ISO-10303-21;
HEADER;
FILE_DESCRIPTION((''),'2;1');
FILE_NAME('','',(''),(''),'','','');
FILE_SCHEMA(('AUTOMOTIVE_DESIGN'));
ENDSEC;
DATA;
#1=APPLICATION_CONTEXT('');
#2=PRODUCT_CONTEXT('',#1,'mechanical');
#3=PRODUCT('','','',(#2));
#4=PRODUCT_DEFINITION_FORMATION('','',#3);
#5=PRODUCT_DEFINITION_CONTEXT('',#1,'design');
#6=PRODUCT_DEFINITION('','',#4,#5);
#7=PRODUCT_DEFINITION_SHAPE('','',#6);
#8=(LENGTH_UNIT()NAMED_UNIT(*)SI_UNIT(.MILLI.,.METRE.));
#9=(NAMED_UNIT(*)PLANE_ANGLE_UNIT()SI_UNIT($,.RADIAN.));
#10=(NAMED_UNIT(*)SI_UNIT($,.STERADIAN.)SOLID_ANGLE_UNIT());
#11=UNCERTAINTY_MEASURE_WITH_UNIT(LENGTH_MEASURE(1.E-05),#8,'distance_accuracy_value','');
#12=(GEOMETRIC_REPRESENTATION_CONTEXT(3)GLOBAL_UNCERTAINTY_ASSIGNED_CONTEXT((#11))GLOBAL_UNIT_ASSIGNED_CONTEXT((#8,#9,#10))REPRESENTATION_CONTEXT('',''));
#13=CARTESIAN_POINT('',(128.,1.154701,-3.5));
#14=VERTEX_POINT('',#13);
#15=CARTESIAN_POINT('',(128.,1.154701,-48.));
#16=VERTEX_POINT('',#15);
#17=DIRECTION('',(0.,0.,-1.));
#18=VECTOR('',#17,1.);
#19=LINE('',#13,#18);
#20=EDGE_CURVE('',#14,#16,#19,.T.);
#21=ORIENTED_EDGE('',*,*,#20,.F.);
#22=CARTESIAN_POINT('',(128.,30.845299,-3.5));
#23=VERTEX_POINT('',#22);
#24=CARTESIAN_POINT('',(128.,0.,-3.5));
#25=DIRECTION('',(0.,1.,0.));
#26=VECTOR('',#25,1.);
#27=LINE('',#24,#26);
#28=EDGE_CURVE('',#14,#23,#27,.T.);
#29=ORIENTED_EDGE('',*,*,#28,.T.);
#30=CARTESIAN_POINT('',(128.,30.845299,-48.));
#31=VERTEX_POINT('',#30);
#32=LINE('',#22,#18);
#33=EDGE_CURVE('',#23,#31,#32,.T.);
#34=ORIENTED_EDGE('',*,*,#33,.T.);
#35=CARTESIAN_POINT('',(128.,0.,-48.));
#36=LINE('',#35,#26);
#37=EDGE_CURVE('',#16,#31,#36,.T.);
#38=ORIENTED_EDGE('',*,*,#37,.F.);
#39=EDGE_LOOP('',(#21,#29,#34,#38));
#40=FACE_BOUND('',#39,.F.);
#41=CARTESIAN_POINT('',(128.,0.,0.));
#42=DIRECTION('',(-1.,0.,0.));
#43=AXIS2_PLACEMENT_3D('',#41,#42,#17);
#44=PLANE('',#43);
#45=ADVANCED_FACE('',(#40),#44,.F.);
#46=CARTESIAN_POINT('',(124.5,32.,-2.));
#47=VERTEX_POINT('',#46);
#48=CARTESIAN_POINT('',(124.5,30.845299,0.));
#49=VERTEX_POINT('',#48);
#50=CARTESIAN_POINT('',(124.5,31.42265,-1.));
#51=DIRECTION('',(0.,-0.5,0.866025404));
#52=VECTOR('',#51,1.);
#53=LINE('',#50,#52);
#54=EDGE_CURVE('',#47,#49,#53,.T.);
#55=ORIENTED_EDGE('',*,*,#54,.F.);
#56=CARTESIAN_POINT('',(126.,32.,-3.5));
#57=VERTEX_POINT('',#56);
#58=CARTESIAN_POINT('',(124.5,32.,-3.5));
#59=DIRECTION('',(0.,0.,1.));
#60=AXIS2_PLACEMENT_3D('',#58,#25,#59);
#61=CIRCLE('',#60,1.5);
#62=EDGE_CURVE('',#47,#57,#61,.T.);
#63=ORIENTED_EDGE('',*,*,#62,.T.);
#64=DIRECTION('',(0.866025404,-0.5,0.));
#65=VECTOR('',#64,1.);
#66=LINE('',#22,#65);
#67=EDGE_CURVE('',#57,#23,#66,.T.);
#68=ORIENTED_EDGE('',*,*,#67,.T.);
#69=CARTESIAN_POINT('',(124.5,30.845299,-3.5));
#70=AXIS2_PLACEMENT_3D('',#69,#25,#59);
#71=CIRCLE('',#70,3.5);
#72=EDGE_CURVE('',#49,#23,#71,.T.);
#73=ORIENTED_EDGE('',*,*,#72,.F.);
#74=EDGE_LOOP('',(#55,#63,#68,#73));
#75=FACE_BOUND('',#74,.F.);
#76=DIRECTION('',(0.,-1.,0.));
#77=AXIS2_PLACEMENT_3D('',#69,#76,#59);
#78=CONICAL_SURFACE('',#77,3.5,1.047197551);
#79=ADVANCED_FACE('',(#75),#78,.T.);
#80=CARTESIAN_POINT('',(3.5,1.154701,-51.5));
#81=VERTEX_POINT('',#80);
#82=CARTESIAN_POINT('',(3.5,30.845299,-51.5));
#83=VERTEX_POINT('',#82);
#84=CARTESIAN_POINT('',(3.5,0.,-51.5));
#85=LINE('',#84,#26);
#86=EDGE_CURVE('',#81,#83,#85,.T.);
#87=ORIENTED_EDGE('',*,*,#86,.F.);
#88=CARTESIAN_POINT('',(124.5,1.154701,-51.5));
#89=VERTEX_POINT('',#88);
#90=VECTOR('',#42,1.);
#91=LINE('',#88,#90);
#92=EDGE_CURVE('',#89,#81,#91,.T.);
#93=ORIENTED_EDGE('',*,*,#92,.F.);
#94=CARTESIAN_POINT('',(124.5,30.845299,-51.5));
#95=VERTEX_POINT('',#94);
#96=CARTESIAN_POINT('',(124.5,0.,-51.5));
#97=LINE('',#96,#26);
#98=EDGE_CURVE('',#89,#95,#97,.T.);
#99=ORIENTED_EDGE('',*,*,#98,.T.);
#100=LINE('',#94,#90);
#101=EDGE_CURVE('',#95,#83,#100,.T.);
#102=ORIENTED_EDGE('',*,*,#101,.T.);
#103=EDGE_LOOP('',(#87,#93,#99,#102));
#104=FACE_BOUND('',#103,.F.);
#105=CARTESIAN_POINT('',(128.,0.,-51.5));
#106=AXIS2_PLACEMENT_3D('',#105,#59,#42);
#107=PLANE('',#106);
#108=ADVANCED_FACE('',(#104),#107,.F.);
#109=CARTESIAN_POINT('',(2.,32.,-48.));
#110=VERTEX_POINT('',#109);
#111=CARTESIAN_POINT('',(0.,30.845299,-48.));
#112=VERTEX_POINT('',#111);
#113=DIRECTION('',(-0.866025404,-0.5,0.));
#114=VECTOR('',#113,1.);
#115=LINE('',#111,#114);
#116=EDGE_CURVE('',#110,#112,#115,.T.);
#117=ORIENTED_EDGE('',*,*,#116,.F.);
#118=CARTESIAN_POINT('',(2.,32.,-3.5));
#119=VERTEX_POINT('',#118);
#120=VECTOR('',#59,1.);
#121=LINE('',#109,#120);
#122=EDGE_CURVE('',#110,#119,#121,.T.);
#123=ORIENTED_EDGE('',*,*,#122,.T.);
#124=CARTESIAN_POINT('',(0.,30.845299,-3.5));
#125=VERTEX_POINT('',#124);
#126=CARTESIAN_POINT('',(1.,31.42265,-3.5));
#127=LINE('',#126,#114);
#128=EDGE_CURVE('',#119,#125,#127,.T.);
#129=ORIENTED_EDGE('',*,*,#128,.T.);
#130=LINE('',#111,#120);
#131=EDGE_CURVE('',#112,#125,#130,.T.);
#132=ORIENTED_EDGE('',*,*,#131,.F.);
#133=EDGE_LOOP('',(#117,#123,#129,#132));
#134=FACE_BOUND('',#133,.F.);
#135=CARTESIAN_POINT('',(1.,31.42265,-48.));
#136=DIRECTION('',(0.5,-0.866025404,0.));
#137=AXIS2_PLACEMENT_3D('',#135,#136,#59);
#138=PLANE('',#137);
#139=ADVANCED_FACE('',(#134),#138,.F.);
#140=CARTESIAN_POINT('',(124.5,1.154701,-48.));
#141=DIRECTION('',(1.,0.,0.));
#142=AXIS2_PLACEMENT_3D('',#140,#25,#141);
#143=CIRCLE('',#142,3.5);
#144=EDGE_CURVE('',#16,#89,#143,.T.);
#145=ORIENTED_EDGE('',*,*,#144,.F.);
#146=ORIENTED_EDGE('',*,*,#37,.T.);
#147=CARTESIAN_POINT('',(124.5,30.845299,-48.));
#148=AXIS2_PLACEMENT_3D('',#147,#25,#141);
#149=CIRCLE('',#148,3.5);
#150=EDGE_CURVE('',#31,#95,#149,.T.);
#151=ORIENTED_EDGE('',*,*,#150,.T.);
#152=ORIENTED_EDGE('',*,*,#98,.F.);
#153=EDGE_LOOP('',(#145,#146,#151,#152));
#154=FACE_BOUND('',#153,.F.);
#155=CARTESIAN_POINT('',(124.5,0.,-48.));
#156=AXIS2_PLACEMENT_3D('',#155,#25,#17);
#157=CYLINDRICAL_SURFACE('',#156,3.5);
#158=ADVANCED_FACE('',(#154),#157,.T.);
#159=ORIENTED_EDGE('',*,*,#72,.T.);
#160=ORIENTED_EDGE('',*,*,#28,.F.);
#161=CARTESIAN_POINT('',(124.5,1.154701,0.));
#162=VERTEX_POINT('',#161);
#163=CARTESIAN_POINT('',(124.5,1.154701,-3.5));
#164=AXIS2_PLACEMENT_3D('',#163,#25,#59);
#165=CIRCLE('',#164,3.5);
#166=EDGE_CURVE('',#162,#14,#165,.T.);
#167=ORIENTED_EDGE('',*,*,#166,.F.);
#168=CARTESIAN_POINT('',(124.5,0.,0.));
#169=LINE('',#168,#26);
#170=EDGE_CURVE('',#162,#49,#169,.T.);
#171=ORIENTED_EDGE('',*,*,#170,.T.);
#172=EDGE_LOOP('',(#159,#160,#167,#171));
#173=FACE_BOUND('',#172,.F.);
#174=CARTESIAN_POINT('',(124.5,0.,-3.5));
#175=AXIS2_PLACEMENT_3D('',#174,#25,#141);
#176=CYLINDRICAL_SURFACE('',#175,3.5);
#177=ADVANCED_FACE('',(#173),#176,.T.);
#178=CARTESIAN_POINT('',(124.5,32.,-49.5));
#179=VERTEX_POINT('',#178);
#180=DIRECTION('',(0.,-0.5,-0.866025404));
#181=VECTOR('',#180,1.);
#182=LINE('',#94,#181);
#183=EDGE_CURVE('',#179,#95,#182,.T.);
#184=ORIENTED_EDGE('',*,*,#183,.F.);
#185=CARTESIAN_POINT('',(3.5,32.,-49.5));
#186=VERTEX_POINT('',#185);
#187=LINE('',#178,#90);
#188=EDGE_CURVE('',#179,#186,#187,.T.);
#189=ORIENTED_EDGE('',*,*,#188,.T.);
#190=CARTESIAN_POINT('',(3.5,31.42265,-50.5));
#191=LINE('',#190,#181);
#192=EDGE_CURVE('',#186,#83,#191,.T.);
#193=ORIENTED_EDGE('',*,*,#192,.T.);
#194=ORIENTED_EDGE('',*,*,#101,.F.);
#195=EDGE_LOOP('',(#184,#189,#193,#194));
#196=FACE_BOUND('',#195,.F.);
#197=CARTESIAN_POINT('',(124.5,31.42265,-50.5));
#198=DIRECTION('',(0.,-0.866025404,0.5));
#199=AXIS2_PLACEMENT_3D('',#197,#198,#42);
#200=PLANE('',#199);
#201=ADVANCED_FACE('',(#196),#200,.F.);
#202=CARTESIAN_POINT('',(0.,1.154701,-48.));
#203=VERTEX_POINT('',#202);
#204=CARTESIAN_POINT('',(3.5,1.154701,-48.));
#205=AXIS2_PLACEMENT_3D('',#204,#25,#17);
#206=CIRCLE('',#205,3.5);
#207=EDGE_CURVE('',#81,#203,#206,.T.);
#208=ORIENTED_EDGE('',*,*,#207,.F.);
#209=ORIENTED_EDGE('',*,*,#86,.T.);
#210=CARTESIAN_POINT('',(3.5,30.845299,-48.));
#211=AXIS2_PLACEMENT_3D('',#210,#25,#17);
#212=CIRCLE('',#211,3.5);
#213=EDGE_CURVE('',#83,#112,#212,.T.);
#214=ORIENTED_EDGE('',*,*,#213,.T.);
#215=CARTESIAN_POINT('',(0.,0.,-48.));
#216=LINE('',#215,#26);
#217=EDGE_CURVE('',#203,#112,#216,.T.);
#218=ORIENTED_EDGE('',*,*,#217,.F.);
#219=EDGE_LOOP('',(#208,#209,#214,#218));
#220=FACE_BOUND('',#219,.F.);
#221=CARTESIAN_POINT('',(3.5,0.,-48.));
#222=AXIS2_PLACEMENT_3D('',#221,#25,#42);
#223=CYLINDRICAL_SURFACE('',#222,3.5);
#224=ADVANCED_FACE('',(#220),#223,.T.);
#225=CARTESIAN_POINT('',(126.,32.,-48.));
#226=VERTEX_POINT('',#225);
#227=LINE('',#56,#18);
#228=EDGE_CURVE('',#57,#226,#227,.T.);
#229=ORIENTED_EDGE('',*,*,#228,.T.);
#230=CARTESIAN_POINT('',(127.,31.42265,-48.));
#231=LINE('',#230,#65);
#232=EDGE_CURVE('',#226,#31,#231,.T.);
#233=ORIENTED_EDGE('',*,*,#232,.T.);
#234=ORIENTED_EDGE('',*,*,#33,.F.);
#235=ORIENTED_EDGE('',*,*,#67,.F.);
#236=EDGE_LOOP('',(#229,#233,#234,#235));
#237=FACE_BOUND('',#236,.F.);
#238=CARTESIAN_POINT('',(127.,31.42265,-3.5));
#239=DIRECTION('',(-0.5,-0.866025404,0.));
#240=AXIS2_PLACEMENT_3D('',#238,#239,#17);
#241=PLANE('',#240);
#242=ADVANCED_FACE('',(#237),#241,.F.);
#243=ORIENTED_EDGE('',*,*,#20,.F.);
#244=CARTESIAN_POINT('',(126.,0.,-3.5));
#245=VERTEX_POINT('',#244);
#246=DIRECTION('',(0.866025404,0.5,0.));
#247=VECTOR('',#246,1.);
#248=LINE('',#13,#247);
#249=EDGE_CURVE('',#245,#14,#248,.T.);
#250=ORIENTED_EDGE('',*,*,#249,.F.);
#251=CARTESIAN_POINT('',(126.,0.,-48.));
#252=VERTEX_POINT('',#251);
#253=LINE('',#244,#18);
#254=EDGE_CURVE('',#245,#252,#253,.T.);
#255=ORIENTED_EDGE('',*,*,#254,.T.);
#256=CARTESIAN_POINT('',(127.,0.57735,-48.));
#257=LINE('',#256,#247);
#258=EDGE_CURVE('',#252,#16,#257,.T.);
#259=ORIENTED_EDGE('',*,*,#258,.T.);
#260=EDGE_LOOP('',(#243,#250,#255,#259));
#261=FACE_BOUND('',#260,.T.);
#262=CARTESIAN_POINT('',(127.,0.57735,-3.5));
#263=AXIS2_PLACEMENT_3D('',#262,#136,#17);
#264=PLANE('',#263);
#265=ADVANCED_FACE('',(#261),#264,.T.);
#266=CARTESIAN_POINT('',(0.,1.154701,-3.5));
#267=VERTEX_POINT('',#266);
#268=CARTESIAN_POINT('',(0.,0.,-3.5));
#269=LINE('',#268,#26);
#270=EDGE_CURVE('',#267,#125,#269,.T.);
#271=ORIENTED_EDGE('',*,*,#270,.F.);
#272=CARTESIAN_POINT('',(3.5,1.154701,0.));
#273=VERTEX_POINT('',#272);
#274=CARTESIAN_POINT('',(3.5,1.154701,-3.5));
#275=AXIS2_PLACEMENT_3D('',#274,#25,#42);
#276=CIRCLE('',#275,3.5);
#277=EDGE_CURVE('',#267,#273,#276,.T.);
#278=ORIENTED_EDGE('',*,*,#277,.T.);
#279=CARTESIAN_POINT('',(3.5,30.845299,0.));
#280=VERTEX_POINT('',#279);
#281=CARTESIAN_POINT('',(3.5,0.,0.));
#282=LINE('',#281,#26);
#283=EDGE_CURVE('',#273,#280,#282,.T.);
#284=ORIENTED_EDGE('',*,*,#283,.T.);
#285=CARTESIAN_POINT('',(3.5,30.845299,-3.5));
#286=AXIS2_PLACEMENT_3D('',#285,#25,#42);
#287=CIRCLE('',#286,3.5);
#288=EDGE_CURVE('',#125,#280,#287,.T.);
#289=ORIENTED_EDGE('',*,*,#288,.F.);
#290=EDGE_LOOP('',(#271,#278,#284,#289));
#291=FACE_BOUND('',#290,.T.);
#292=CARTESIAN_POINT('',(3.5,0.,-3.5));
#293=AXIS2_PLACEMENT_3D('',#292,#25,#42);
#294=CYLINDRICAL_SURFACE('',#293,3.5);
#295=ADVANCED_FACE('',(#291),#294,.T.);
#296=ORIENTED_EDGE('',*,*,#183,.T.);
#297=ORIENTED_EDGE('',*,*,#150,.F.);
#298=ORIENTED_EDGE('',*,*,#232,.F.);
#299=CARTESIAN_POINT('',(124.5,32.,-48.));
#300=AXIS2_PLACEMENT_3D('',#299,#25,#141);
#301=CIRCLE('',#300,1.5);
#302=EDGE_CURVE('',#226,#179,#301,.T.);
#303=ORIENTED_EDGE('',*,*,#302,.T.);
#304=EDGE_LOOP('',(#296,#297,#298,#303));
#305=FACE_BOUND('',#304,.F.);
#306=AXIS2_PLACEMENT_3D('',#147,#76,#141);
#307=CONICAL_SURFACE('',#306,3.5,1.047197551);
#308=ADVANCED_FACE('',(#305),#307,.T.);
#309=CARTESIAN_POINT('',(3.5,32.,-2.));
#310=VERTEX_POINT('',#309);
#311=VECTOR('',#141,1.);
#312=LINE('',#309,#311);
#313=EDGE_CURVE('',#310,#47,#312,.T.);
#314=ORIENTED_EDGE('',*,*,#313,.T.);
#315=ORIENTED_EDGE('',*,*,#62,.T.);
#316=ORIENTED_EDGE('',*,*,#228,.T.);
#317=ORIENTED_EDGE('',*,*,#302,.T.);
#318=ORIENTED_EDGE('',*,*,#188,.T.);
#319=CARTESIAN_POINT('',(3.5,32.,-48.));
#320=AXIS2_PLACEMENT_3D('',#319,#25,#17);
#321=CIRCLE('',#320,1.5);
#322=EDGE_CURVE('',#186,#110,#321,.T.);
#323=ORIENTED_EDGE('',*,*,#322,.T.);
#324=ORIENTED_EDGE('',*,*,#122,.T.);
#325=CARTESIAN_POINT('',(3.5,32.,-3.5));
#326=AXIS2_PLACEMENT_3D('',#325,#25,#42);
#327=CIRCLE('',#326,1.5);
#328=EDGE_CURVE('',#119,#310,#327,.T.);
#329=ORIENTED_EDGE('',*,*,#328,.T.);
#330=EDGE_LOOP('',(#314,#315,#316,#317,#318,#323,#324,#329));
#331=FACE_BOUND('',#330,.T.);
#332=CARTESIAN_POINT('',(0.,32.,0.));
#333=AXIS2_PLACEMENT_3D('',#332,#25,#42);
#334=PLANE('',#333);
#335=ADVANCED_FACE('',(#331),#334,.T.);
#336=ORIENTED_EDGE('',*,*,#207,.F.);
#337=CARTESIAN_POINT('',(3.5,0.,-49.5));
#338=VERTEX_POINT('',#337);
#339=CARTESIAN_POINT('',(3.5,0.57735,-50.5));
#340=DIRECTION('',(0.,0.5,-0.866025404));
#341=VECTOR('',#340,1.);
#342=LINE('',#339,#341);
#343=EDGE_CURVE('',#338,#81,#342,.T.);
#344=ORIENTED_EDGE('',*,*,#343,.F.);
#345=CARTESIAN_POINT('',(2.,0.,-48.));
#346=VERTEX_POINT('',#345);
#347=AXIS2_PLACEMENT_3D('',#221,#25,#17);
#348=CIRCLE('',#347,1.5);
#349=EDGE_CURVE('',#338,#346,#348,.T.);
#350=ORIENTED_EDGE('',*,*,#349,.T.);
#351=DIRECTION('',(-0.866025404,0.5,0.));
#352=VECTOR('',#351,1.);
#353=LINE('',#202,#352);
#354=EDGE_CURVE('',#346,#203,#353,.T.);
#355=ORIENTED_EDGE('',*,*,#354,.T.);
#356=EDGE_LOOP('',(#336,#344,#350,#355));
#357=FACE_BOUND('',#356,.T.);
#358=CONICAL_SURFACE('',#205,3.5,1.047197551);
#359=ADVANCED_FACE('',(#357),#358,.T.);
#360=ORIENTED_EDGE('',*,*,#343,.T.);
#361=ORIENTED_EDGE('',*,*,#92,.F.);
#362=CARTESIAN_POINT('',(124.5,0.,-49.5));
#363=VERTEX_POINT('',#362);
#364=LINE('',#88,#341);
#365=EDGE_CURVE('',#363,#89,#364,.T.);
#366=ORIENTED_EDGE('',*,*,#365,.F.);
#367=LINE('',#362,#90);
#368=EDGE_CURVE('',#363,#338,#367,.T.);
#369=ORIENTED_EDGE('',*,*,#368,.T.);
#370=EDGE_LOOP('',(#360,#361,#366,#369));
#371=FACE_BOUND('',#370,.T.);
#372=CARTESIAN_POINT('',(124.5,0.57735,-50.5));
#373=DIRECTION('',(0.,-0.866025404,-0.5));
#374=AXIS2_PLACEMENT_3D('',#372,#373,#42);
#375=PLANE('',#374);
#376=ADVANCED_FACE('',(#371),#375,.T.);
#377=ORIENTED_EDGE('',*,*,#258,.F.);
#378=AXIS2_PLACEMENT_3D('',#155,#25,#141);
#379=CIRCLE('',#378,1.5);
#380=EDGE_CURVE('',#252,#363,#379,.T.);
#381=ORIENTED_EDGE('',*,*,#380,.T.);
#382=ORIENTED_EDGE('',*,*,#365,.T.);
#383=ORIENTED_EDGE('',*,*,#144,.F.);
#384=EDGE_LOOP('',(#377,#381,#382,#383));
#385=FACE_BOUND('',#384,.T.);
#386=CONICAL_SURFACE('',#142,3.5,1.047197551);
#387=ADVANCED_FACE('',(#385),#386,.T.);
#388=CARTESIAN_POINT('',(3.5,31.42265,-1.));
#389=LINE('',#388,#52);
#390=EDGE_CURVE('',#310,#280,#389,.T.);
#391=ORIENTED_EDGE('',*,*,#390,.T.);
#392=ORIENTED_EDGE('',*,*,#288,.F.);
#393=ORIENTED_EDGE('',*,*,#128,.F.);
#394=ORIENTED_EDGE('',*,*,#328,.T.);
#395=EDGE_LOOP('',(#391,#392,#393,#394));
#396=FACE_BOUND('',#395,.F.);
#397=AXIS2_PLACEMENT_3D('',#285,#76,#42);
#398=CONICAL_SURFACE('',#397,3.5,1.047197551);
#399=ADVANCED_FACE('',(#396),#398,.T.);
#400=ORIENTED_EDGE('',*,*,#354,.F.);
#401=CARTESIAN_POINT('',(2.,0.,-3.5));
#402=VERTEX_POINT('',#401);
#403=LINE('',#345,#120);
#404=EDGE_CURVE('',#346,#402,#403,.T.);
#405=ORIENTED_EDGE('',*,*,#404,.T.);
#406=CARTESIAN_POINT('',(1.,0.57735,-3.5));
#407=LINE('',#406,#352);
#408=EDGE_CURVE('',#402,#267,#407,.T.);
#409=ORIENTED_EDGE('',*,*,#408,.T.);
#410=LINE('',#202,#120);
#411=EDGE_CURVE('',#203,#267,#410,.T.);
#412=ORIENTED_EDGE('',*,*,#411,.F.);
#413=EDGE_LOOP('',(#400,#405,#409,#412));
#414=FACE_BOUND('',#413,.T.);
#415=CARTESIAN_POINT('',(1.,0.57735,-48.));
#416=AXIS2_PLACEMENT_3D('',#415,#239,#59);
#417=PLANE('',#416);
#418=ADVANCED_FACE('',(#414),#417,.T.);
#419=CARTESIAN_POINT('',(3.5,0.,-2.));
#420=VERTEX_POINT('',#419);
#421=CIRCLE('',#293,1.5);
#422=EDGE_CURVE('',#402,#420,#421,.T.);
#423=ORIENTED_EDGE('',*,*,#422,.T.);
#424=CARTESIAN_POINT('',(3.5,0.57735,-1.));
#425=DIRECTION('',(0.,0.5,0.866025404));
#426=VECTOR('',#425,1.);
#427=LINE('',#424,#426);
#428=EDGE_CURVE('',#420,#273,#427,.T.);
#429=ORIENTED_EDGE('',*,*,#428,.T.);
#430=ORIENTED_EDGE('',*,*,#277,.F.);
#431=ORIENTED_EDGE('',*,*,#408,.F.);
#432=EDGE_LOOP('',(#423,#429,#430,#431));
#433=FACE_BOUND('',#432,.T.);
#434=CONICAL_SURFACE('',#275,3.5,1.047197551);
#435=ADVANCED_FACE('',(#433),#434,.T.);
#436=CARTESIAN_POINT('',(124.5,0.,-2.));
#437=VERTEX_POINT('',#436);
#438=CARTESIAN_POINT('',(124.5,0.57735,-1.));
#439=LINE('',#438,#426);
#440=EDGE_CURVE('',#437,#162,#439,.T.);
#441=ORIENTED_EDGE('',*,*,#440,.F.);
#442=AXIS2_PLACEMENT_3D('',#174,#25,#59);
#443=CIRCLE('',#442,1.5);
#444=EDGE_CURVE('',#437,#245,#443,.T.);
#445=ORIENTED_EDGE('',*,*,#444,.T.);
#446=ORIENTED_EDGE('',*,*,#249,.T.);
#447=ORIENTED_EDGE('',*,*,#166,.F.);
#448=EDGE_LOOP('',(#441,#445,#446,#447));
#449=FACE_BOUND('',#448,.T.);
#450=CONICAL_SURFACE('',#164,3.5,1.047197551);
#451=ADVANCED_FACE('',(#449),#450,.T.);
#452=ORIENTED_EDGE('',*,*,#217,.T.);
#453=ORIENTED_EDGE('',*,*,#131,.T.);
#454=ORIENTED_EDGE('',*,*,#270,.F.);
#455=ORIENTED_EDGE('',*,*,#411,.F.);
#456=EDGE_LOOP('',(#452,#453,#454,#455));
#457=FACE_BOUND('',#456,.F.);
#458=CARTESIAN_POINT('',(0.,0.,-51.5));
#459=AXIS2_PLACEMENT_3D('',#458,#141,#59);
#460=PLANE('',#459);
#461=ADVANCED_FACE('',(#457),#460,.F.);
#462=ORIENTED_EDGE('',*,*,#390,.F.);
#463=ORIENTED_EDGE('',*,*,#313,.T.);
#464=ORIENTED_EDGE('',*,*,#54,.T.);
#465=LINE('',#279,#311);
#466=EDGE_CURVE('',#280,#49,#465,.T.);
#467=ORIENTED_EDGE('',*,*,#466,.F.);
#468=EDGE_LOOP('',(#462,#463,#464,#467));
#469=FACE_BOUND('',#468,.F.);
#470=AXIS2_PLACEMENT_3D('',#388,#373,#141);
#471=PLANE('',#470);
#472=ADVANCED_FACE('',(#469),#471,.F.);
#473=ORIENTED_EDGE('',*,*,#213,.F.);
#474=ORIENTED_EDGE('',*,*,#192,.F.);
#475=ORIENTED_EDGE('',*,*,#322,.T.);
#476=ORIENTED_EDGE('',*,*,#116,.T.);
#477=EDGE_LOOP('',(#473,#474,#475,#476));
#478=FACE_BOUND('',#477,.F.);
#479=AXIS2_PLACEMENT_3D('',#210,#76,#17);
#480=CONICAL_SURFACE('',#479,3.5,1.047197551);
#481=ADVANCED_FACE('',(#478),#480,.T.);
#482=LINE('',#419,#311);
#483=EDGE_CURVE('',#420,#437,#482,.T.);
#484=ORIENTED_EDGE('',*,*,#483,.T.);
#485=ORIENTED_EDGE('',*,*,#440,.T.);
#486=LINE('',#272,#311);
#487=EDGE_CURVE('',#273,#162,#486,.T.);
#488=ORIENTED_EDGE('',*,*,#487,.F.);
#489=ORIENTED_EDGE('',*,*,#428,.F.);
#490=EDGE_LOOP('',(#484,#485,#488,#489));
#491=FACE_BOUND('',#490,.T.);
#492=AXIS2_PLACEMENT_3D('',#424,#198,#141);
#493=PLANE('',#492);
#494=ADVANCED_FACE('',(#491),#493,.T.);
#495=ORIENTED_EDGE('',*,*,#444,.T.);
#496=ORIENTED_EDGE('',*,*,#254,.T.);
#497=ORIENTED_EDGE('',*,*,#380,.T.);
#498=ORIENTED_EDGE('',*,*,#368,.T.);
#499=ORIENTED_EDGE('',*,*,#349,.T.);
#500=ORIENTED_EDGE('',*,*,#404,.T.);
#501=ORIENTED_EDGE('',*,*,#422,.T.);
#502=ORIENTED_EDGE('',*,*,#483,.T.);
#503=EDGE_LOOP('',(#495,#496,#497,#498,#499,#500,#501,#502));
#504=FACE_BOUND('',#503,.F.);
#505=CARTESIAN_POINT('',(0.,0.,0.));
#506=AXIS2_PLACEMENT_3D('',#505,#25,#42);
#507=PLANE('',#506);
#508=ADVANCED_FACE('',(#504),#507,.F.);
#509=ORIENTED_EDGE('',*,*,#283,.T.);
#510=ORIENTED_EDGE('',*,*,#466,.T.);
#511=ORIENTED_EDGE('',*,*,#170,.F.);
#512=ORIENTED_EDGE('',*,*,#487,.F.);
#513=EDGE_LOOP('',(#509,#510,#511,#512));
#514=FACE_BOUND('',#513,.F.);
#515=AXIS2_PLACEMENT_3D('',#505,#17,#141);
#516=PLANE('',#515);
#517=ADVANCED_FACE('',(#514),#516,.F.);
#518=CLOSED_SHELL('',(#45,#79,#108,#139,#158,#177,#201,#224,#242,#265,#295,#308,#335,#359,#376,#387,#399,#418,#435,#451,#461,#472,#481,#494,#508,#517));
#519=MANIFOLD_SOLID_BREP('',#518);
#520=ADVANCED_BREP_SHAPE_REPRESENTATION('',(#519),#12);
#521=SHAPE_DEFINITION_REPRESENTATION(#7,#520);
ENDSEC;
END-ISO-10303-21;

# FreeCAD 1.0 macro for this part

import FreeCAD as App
import Part
import Sketcher
from FreeCAD import Vector
Q = App.Units.Quantity


def edges_at(feature, points):
    """Names of the edges that pass closest to the given points."""
    edges = feature.Shape.Edges
    near = lambda p: min(range(len(edges)), key=lambda i: edges[i].distToShape(Part.Vertex(*p))[0])
    return sorted({f"Edge{near(p) + 1}" for p in points})


def add_polygon(sketch, points):
    """Adds a closed chain of lines whose ends are joined by coincident constraints."""
    first, n = sketch.GeometryCount, len(points)
    for a, b in zip(points, points[1:] + points[:1]):
        sketch.addGeometry(Part.LineSegment(App.Vector(*a, 0), App.Vector(*b, 0)), False)
    for i in range(n):
        sketch.addConstraint(Sketcher.Constraint("Coincident", first + i, 2, first + (i + 1) % n, 1))

doc = App.newDocument("Part")
body = doc.addObject("PartDesign::Body", "Body")

# Sketch on XZ plane
sketch1 = body.newObject("Sketcher::SketchObject", "Sketch")
sketch1.AttachmentSupport = (doc.getObject("XZ_Plane"), [""])
sketch1.MapMode = "FlatFace"
add_polygon(sketch1, [(0, -52), (0, 0), (128, 0), (128, -52)])  # lines 0-3
sketch1.addConstraint([
    Sketcher.Constraint("Vertical", 0),
    Sketcher.Constraint("Horizontal", 1),
    Sketcher.Constraint("Vertical", 2),
    Sketcher.Constraint("Horizontal", 3),
    Sketcher.Constraint("Coincident", 0, 2, -1, 1),
    Sketcher.Constraint("DistanceX", 1, 1, 1, 2, Q("128 mm")),
    Sketcher.Constraint("DistanceY", 0, 1, 0, 2, Q("51.5 mm")),
])
pad1 = body.newObject("PartDesign::Pad", "Pad")
pad1.Profile = sketch1
pad1.Length = 32
pad1.Reversed = True
doc.recompute()

fillet = body.newObject("PartDesign::Fillet", "Fillet")
fillet.Base = (pad1, edges_at(pad1, [
    (128, 16, 0),
    (128, 16, -51.5),
    (0, 16, 0),
    (0, 16, -51.5),
]))
fillet.Radius = 3.5
doc.recompute()

chamfer = body.newObject("PartDesign::Chamfer", "Chamfer")
chamfer.Base = (fillet, edges_at(fillet, [
    (64, 32, 0),
    (0, 32, -25.75),
    (64, 32, -51.5),
    (128, 32, -25.75),
]))
chamfer.ChamferType = "Distance and Angle"
chamfer.Size = 2
chamfer.Angle = 30
doc.recompute()

chamfer2 = body.newObject("PartDesign::Chamfer", "Chamfer001")
chamfer2.Base = (chamfer, edges_at(chamfer, [
    (64, 0, 0),
    (128, 0, -25.75),
    (64, 0, -51.5),
    (0, 0, -25.75),
]))
chamfer2.ChamferType = "Distance and Angle"
chamfer2.Size = 2
chamfer2.Angle = 30

doc.recompute()
